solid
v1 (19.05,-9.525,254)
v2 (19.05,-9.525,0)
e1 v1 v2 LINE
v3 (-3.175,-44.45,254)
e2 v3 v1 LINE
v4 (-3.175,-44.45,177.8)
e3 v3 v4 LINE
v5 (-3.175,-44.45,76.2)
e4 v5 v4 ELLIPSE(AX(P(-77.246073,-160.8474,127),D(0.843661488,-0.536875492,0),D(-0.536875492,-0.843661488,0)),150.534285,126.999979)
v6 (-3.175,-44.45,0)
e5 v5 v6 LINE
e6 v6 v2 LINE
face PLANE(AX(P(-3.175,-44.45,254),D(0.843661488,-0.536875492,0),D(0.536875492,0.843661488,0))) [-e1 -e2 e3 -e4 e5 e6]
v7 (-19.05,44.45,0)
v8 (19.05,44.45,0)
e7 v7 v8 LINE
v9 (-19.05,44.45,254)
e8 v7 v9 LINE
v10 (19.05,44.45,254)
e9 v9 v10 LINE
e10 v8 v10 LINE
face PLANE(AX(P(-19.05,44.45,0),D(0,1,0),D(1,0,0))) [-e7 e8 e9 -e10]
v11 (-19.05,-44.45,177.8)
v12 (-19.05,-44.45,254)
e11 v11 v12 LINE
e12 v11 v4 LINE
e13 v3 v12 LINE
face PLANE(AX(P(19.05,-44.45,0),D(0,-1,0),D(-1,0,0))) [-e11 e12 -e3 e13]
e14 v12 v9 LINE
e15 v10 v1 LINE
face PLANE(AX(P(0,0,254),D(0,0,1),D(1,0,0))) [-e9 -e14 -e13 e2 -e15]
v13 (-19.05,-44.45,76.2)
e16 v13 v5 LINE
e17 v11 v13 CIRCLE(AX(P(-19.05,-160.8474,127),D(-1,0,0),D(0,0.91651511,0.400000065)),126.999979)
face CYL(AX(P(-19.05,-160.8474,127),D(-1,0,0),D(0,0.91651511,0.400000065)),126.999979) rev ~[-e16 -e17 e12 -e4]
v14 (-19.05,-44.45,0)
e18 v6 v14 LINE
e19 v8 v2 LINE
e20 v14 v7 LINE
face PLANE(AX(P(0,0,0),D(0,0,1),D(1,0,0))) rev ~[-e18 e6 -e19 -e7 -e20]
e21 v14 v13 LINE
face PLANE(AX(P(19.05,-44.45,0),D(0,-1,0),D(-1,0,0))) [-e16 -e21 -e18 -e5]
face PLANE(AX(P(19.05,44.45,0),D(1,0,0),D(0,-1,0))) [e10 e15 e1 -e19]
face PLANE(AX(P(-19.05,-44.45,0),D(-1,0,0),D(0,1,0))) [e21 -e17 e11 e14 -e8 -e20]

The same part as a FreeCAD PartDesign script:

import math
import FreeCAD as App
import Part
import Sketcher
Q = App.Units.Quantity


def add_polygon(sketch, points):
    """Adds a closed chain of lines whose ends are joined by coincident constraints."""
    first, n = sketch.GeometryCount, len(points)
    for a, b in zip(points, points[1:] + points[:1]):
        sketch.addGeometry(Part.LineSegment(App.Vector(*a, 0), App.Vector(*b, 0)), False)
    for i in range(n):
        sketch.addConstraint(Sketcher.Constraint("Coincident", first + i, 2, first + (i + 1) % n, 1))

doc = App.newDocument("Part")
body = doc.addObject("PartDesign::Body", "Body")

# Sketch on XY plane
sketch1 = body.newObject("Sketcher::SketchObject", "Sketch")
sketch1.AttachmentSupport = (doc.getObject("XY_Plane"), [""])
sketch1.MapMode = "FlatFace"
add_polygon(sketch1, [(-19, -44), (19, -44), (19, 44), (-19, 44)])  # lines 0-3
sketch1.addConstraint([
    Sketcher.Constraint("Horizontal", 0),
    Sketcher.Constraint("Vertical", 1),
    Sketcher.Constraint("Horizontal", 2),
    Sketcher.Constraint("Vertical", 3),
    Sketcher.Constraint("Symmetric", 0, 2, 2, 2, -1, 1),
    Sketcher.Constraint("DistanceX", 0, 1, 0, 2, Q("1.5 in")),
    Sketcher.Constraint("DistanceY", 1, 1, 1, 2, Q("3.5 in")),
])
pad1 = body.newObject("PartDesign::Pad", "Pad")
pad1.Profile = sketch1
pad1.Length = Q("10 in")

# Sketch on XY plane
sketch2 = body.newObject("Sketcher::SketchObject", "Sketch001")
sketch2.AttachmentSupport = (doc.getObject("XY_Plane"), [""])
sketch2.MapMode = "FlatFace"
sketch2.AttachmentOffset = App.Placement(App.Vector(0, 0, 10 * 25.4), App.Rotation())
add_polygon(sketch2, [(19, -10), (-3, -44), (19, -44)])  # lines 0-2
sketch2.addConstraint([
    Sketcher.Constraint("Horizontal", 1),
    Sketcher.Constraint("Vertical", 2),
    Sketcher.Constraint("DistanceX", 1, 1, 1, 2, Q("0.875 in")),
    Sketcher.Constraint("DistanceY", 2, 1, 2, 2, Q("1.375 in")),
    Sketcher.Constraint("DistanceY", 0, 2, -1, 1, Q("1.75 in")),
    Sketcher.Constraint("DistanceX", -1, 1, 1, 2, Q("0.75 in")),
])
pocket1 = body.newObject("PartDesign::Pocket", "Pocket")
pocket1.Profile = sketch2
pocket1.Length = Q("10 in")

# Sketch on YZ plane
sketch3 = body.newObject("Sketcher::SketchObject", "Sketch002")
sketch3.AttachmentSupport = (doc.getObject("YZ_Plane"), [""])
sketch3.MapMode = "FlatFace"
sketch3.AttachmentOffset = App.Placement(App.Vector(0, 0, -0.75 * 25.4), App.Rotation())
sketch3.addGeometry([
    Part.ArcOfCircle(Part.Circle(App.Vector(-161, 127, 0), App.Vector(0, 0, 1), 127), math.radians(-24), math.radians(24)),
    Part.LineSegment(App.Vector(-44, 76, 0), App.Vector(-44, 178, 0)),
], False)
sketch3.addConstraint([
    Sketcher.Constraint("Coincident", 0, 1, 1, 1),
    Sketcher.Constraint("Coincident", 1, 2, 0, 2),
    Sketcher.Constraint("Vertical", 1),
    Sketcher.Constraint("Radius", 0, Q("5 in")),
    Sketcher.Constraint("DistanceY", -1, 1, 0, 3, Q("5 in")),
    Sketcher.Constraint("DistanceY", -1, 1, 0, 1, Q("3 in")),
    Sketcher.Constraint("DistanceX", 0, 1, -1, 1, Q("1.75 in")),
])
pocket2 = body.newObject("PartDesign::Pocket", "Pocket001")
pocket2.Profile = sketch3
pocket2.Length = Q("10 in")
pocket2.Reversed = True

doc.recompute()
